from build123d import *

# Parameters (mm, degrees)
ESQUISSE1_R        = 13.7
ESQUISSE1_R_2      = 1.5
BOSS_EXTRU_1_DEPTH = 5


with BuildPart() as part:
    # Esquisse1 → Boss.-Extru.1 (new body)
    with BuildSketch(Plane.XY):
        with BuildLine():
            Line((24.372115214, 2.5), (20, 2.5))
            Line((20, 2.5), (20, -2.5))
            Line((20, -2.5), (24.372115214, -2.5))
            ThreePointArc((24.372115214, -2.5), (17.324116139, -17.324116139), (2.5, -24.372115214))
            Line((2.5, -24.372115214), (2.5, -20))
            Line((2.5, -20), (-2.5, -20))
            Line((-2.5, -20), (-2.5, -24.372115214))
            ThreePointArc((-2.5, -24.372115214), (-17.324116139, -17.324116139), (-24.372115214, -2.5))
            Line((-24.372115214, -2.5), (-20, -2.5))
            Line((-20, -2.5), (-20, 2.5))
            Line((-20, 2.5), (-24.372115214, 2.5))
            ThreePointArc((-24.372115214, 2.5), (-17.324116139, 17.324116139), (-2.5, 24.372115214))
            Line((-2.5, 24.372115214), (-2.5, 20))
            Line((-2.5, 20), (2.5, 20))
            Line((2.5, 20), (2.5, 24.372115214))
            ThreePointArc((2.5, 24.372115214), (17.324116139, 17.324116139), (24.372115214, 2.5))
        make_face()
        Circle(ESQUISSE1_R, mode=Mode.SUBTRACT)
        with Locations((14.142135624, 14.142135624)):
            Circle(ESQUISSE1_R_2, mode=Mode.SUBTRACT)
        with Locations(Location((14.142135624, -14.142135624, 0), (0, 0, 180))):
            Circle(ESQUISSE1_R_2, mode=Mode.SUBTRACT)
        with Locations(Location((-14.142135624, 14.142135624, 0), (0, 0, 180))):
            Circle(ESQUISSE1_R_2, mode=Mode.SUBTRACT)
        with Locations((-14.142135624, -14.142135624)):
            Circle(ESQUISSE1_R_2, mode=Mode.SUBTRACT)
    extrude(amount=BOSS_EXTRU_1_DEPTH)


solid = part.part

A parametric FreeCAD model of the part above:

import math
import FreeCAD as App
import Part
import Sketcher

V = App.Vector
Q = App.Units.Quantity

doc = App.newDocument("Part")
body = doc.addObject("PartDesign::Body", "Body")

sketch1 = doc.addObject("Sketcher::SketchObject", "Sketch")
body.addObject(sketch1)
sketch1.AttachmentSupport = (doc.XY_Plane, [""])
sketch1.MapMode = "FlatFace"
sketch1.addGeometry(Part.LineSegment(V(20, 2.5, 0), V(24.4, 2.5, 0)), False)
sketch1.addGeometry(Part.ArcOfCircle(Part.Circle(V(0, 0, 0), V(0, 0, 1), 24.5), math.radians(6), math.radians(84)), False)
sketch1.addGeometry(Part.LineSegment(V(2.5, 24.4, 0), V(2.5, 20, 0)), False)
sketch1.addGeometry(Part.LineSegment(V(2.5, 20, 0), V(-2.5, 20, 0)), False)
sketch1.addGeometry(Part.LineSegment(V(-2.5, 20, 0), V(-2.5, 24.4, 0)), False)
sketch1.addGeometry(Part.ArcOfCircle(Part.Circle(V(0, 0, 0), V(0, 0, 1), 24.5), math.radians(96), math.radians(174)), False)
sketch1.addGeometry(Part.LineSegment(V(-24.4, 2.5, 0), V(-20, 2.5, 0)), False)
sketch1.addGeometry(Part.LineSegment(V(-20, 2.5, 0), V(-20, -2.5, 0)), False)
sketch1.addGeometry(Part.LineSegment(V(-20, -2.5, 0), V(-24.4, -2.5, 0)), False)
sketch1.addGeometry(Part.ArcOfCircle(Part.Circle(V(0, 0, 0), V(0, 0, 1), 24.5), math.radians(-174), math.radians(-96)), False)
sketch1.addGeometry(Part.LineSegment(V(-2.5, -24.4, 0), V(-2.5, -20, 0)), False)
sketch1.addGeometry(Part.LineSegment(V(-2.5, -20, 0), V(2.5, -20, 0)), False)
sketch1.addGeometry(Part.LineSegment(V(2.5, -20, 0), V(2.5, -24.4, 0)), False)
sketch1.addGeometry(Part.ArcOfCircle(Part.Circle(V(0, 0, 0), V(0, 0, 1), 24.5), math.radians(-84), math.radians(-6)), False)
sketch1.addGeometry(Part.LineSegment(V(24.4, -2.5, 0), V(20, -2.5, 0)), False)
sketch1.addGeometry(Part.LineSegment(V(20, -2.5, 0), V(20, 2.5, 0)), False)
sketch1.addGeometry(Part.Circle(V(14.1, -14.1, 0), V(0, 0, 1), 1.5), False)
sketch1.addGeometry(Part.Circle(V(-14.1, -14.1, 0), V(0, 0, 1), 1.5), False)
sketch1.addGeometry(Part.Circle(V(14.1, 14.1, 0), V(0, 0, 1), 1.5), False)
sketch1.addGeometry(Part.Circle(V(0, 0, 0), V(0, 0, 1), 13.7), False)
sketch1.addGeometry(Part.Circle(V(-14.1, 14.1, 0), V(0, 0, 1), 1.5), False)
sketch1.addConstraint(Sketcher.Constraint("Coincident", 0, 2, 1, 1))
sketch1.addConstraint(Sketcher.Constraint("Coincident", 1, 2, 2, 1))
sketch1.addConstraint(Sketcher.Constraint("Coincident", 2, 2, 3, 1))
sketch1.addConstraint(Sketcher.Constraint("Coincident", 3, 2, 4, 1))
sketch1.addConstraint(Sketcher.Constraint("Coincident", 4, 2, 5, 1))
sketch1.addConstraint(Sketcher.Constraint("Coincident", 5, 2, 6, 1))
sketch1.addConstraint(Sketcher.Constraint("Coincident", 6, 2, 7, 1))
sketch1.addConstraint(Sketcher.Constraint("Coincident", 7, 2, 8, 1))
sketch1.addConstraint(Sketcher.Constraint("Coincident", 8, 2, 9, 1))
sketch1.addConstraint(Sketcher.Constraint("Coincident", 9, 2, 10, 1))
sketch1.addConstraint(Sketcher.Constraint("Coincident", 10, 2, 11, 1))
sketch1.addConstraint(Sketcher.Constraint("Coincident", 11, 2, 12, 1))
sketch1.addConstraint(Sketcher.Constraint("Coincident", 12, 2, 13, 1))
sketch1.addConstraint(Sketcher.Constraint("Coincident", 13, 2, 14, 1))
sketch1.addConstraint(Sketcher.Constraint("Coincident", 14, 2, 15, 1))
sketch1.addConstraint(Sketcher.Constraint("Coincident", 15, 2, 0, 1))
sketch1.addConstraint(Sketcher.Constraint("Horizontal", 0))
sketch1.addConstraint(Sketcher.Constraint("Vertical", 2))
sketch1.addConstraint(Sketcher.Constraint("Horizontal", 3))
sketch1.addConstraint(Sketcher.Constraint("Vertical", 4))
sketch1.addConstraint(Sketcher.Constraint("Horizontal", 6))
sketch1.addConstraint(Sketcher.Constraint("Vertical", 7))
sketch1.addConstraint(Sketcher.Constraint("Horizontal", 8))
sketch1.addConstraint(Sketcher.Constraint("Vertical", 10))
sketch1.addConstraint(Sketcher.Constraint("Horizontal", 11))
sketch1.addConstraint(Sketcher.Constraint("Vertical", 12))
sketch1.addConstraint(Sketcher.Constraint("Horizontal", 14))
sketch1.addConstraint(Sketcher.Constraint("Vertical", 15))
sketch1.addConstraint(Sketcher.Constraint("Coincident", 1, 3, -1, 1))
sketch1.addConstraint(Sketcher.Constraint("Coincident", 5, 3, -1, 1))
sketch1.addConstraint(Sketcher.Constraint("Coincident", 9, 3, -1, 1))
sketch1.addConstraint(Sketcher.Constraint("Coincident", 13, 3, -1, 1))
sketch1.addConstraint(Sketcher.Constraint("Coincident", 19, 3, -1, 1))
sketch1.addConstraint(Sketcher.Constraint("Equal", 1, 5))
sketch1.addConstraint(Sketcher.Constraint("Equal", 5, 9))
sketch1.addConstraint(Sketcher.Constraint("Equal", 9, 13))
sketch1.addConstraint(Sketcher.Constraint("Equal", 16, 17))
sketch1.addConstraint(Sketcher.Constraint("Equal", 17, 18))
sketch1.addConstraint(Sketcher.Constraint("Equal", 18, 20))
sketch1.addConstraint(Sketcher.Constraint("Symmetric", 17, 3, 18, 3, -1, 1))
sketch1.addConstraint(Sketcher.Constraint("Symmetric", 16, 3, 20, 3, -1, 1))
sketch1.addConstraint(Sketcher.Constraint("Symmetric", 2, 2, 10, 2, -1, 1))
sketch1.addConstraint(Sketcher.Constraint("Symmetric", 6, 2, 14, 2, -1, 1))
sketch1.addConstraint(Sketcher.Constraint("Symmetric", 16, 3, 17, 3, -2))
sketch1.addConstraint(Sketcher.Constraint("Horizontal", 1, 2, 4, 2))
sketch1.addConstraint(Sketcher.Constraint("Horizontal", 0, 2, 5, 2))
sketch1.addConstraint(Sketcher.Constraint("Horizontal", 9, 2, 12, 2))
sketch1.addConstraint(Sketcher.Constraint("Horizontal", 8, 2, 13, 2))
sketch1.addConstraint(Sketcher.Constraint("Equal", 14, 2))
sketch1.addConstraint(Sketcher.Constraint("Equal", 11, 7))
sketch1.addConstraint(Sketcher.Constraint("Diameter", 16, Q("3 mm")))
sketch1.addConstraint(Sketcher.Constraint("Diameter", 19, Q("27.4 mm")))
sketch1.addConstraint(Sketcher.Constraint("Radius", 1, Q("24.5 mm")))
sketch1.addConstraint(Sketcher.Constraint("DistanceX", 3, 2, 3, 1, Q("5 mm")))
sketch1.addConstraint(Sketcher.Constraint("DistanceY", -1, 1, 2, 2, Q("20 mm")))
sketch1.addConstraint(Sketcher.Constraint("DistanceX", 17, 3, 16, 3, Q("28.284271 mm")))
sketch1.addConstraint(Sketcher.Constraint("DistanceY", 16, 3, 18, 3, Q("28.284271 mm")))
pad1 = doc.addObject("PartDesign::Pad", "Pad")
body.addObject(pad1)
pad1.Profile = sketch1
pad1.Length = 5

doc.recompute()
